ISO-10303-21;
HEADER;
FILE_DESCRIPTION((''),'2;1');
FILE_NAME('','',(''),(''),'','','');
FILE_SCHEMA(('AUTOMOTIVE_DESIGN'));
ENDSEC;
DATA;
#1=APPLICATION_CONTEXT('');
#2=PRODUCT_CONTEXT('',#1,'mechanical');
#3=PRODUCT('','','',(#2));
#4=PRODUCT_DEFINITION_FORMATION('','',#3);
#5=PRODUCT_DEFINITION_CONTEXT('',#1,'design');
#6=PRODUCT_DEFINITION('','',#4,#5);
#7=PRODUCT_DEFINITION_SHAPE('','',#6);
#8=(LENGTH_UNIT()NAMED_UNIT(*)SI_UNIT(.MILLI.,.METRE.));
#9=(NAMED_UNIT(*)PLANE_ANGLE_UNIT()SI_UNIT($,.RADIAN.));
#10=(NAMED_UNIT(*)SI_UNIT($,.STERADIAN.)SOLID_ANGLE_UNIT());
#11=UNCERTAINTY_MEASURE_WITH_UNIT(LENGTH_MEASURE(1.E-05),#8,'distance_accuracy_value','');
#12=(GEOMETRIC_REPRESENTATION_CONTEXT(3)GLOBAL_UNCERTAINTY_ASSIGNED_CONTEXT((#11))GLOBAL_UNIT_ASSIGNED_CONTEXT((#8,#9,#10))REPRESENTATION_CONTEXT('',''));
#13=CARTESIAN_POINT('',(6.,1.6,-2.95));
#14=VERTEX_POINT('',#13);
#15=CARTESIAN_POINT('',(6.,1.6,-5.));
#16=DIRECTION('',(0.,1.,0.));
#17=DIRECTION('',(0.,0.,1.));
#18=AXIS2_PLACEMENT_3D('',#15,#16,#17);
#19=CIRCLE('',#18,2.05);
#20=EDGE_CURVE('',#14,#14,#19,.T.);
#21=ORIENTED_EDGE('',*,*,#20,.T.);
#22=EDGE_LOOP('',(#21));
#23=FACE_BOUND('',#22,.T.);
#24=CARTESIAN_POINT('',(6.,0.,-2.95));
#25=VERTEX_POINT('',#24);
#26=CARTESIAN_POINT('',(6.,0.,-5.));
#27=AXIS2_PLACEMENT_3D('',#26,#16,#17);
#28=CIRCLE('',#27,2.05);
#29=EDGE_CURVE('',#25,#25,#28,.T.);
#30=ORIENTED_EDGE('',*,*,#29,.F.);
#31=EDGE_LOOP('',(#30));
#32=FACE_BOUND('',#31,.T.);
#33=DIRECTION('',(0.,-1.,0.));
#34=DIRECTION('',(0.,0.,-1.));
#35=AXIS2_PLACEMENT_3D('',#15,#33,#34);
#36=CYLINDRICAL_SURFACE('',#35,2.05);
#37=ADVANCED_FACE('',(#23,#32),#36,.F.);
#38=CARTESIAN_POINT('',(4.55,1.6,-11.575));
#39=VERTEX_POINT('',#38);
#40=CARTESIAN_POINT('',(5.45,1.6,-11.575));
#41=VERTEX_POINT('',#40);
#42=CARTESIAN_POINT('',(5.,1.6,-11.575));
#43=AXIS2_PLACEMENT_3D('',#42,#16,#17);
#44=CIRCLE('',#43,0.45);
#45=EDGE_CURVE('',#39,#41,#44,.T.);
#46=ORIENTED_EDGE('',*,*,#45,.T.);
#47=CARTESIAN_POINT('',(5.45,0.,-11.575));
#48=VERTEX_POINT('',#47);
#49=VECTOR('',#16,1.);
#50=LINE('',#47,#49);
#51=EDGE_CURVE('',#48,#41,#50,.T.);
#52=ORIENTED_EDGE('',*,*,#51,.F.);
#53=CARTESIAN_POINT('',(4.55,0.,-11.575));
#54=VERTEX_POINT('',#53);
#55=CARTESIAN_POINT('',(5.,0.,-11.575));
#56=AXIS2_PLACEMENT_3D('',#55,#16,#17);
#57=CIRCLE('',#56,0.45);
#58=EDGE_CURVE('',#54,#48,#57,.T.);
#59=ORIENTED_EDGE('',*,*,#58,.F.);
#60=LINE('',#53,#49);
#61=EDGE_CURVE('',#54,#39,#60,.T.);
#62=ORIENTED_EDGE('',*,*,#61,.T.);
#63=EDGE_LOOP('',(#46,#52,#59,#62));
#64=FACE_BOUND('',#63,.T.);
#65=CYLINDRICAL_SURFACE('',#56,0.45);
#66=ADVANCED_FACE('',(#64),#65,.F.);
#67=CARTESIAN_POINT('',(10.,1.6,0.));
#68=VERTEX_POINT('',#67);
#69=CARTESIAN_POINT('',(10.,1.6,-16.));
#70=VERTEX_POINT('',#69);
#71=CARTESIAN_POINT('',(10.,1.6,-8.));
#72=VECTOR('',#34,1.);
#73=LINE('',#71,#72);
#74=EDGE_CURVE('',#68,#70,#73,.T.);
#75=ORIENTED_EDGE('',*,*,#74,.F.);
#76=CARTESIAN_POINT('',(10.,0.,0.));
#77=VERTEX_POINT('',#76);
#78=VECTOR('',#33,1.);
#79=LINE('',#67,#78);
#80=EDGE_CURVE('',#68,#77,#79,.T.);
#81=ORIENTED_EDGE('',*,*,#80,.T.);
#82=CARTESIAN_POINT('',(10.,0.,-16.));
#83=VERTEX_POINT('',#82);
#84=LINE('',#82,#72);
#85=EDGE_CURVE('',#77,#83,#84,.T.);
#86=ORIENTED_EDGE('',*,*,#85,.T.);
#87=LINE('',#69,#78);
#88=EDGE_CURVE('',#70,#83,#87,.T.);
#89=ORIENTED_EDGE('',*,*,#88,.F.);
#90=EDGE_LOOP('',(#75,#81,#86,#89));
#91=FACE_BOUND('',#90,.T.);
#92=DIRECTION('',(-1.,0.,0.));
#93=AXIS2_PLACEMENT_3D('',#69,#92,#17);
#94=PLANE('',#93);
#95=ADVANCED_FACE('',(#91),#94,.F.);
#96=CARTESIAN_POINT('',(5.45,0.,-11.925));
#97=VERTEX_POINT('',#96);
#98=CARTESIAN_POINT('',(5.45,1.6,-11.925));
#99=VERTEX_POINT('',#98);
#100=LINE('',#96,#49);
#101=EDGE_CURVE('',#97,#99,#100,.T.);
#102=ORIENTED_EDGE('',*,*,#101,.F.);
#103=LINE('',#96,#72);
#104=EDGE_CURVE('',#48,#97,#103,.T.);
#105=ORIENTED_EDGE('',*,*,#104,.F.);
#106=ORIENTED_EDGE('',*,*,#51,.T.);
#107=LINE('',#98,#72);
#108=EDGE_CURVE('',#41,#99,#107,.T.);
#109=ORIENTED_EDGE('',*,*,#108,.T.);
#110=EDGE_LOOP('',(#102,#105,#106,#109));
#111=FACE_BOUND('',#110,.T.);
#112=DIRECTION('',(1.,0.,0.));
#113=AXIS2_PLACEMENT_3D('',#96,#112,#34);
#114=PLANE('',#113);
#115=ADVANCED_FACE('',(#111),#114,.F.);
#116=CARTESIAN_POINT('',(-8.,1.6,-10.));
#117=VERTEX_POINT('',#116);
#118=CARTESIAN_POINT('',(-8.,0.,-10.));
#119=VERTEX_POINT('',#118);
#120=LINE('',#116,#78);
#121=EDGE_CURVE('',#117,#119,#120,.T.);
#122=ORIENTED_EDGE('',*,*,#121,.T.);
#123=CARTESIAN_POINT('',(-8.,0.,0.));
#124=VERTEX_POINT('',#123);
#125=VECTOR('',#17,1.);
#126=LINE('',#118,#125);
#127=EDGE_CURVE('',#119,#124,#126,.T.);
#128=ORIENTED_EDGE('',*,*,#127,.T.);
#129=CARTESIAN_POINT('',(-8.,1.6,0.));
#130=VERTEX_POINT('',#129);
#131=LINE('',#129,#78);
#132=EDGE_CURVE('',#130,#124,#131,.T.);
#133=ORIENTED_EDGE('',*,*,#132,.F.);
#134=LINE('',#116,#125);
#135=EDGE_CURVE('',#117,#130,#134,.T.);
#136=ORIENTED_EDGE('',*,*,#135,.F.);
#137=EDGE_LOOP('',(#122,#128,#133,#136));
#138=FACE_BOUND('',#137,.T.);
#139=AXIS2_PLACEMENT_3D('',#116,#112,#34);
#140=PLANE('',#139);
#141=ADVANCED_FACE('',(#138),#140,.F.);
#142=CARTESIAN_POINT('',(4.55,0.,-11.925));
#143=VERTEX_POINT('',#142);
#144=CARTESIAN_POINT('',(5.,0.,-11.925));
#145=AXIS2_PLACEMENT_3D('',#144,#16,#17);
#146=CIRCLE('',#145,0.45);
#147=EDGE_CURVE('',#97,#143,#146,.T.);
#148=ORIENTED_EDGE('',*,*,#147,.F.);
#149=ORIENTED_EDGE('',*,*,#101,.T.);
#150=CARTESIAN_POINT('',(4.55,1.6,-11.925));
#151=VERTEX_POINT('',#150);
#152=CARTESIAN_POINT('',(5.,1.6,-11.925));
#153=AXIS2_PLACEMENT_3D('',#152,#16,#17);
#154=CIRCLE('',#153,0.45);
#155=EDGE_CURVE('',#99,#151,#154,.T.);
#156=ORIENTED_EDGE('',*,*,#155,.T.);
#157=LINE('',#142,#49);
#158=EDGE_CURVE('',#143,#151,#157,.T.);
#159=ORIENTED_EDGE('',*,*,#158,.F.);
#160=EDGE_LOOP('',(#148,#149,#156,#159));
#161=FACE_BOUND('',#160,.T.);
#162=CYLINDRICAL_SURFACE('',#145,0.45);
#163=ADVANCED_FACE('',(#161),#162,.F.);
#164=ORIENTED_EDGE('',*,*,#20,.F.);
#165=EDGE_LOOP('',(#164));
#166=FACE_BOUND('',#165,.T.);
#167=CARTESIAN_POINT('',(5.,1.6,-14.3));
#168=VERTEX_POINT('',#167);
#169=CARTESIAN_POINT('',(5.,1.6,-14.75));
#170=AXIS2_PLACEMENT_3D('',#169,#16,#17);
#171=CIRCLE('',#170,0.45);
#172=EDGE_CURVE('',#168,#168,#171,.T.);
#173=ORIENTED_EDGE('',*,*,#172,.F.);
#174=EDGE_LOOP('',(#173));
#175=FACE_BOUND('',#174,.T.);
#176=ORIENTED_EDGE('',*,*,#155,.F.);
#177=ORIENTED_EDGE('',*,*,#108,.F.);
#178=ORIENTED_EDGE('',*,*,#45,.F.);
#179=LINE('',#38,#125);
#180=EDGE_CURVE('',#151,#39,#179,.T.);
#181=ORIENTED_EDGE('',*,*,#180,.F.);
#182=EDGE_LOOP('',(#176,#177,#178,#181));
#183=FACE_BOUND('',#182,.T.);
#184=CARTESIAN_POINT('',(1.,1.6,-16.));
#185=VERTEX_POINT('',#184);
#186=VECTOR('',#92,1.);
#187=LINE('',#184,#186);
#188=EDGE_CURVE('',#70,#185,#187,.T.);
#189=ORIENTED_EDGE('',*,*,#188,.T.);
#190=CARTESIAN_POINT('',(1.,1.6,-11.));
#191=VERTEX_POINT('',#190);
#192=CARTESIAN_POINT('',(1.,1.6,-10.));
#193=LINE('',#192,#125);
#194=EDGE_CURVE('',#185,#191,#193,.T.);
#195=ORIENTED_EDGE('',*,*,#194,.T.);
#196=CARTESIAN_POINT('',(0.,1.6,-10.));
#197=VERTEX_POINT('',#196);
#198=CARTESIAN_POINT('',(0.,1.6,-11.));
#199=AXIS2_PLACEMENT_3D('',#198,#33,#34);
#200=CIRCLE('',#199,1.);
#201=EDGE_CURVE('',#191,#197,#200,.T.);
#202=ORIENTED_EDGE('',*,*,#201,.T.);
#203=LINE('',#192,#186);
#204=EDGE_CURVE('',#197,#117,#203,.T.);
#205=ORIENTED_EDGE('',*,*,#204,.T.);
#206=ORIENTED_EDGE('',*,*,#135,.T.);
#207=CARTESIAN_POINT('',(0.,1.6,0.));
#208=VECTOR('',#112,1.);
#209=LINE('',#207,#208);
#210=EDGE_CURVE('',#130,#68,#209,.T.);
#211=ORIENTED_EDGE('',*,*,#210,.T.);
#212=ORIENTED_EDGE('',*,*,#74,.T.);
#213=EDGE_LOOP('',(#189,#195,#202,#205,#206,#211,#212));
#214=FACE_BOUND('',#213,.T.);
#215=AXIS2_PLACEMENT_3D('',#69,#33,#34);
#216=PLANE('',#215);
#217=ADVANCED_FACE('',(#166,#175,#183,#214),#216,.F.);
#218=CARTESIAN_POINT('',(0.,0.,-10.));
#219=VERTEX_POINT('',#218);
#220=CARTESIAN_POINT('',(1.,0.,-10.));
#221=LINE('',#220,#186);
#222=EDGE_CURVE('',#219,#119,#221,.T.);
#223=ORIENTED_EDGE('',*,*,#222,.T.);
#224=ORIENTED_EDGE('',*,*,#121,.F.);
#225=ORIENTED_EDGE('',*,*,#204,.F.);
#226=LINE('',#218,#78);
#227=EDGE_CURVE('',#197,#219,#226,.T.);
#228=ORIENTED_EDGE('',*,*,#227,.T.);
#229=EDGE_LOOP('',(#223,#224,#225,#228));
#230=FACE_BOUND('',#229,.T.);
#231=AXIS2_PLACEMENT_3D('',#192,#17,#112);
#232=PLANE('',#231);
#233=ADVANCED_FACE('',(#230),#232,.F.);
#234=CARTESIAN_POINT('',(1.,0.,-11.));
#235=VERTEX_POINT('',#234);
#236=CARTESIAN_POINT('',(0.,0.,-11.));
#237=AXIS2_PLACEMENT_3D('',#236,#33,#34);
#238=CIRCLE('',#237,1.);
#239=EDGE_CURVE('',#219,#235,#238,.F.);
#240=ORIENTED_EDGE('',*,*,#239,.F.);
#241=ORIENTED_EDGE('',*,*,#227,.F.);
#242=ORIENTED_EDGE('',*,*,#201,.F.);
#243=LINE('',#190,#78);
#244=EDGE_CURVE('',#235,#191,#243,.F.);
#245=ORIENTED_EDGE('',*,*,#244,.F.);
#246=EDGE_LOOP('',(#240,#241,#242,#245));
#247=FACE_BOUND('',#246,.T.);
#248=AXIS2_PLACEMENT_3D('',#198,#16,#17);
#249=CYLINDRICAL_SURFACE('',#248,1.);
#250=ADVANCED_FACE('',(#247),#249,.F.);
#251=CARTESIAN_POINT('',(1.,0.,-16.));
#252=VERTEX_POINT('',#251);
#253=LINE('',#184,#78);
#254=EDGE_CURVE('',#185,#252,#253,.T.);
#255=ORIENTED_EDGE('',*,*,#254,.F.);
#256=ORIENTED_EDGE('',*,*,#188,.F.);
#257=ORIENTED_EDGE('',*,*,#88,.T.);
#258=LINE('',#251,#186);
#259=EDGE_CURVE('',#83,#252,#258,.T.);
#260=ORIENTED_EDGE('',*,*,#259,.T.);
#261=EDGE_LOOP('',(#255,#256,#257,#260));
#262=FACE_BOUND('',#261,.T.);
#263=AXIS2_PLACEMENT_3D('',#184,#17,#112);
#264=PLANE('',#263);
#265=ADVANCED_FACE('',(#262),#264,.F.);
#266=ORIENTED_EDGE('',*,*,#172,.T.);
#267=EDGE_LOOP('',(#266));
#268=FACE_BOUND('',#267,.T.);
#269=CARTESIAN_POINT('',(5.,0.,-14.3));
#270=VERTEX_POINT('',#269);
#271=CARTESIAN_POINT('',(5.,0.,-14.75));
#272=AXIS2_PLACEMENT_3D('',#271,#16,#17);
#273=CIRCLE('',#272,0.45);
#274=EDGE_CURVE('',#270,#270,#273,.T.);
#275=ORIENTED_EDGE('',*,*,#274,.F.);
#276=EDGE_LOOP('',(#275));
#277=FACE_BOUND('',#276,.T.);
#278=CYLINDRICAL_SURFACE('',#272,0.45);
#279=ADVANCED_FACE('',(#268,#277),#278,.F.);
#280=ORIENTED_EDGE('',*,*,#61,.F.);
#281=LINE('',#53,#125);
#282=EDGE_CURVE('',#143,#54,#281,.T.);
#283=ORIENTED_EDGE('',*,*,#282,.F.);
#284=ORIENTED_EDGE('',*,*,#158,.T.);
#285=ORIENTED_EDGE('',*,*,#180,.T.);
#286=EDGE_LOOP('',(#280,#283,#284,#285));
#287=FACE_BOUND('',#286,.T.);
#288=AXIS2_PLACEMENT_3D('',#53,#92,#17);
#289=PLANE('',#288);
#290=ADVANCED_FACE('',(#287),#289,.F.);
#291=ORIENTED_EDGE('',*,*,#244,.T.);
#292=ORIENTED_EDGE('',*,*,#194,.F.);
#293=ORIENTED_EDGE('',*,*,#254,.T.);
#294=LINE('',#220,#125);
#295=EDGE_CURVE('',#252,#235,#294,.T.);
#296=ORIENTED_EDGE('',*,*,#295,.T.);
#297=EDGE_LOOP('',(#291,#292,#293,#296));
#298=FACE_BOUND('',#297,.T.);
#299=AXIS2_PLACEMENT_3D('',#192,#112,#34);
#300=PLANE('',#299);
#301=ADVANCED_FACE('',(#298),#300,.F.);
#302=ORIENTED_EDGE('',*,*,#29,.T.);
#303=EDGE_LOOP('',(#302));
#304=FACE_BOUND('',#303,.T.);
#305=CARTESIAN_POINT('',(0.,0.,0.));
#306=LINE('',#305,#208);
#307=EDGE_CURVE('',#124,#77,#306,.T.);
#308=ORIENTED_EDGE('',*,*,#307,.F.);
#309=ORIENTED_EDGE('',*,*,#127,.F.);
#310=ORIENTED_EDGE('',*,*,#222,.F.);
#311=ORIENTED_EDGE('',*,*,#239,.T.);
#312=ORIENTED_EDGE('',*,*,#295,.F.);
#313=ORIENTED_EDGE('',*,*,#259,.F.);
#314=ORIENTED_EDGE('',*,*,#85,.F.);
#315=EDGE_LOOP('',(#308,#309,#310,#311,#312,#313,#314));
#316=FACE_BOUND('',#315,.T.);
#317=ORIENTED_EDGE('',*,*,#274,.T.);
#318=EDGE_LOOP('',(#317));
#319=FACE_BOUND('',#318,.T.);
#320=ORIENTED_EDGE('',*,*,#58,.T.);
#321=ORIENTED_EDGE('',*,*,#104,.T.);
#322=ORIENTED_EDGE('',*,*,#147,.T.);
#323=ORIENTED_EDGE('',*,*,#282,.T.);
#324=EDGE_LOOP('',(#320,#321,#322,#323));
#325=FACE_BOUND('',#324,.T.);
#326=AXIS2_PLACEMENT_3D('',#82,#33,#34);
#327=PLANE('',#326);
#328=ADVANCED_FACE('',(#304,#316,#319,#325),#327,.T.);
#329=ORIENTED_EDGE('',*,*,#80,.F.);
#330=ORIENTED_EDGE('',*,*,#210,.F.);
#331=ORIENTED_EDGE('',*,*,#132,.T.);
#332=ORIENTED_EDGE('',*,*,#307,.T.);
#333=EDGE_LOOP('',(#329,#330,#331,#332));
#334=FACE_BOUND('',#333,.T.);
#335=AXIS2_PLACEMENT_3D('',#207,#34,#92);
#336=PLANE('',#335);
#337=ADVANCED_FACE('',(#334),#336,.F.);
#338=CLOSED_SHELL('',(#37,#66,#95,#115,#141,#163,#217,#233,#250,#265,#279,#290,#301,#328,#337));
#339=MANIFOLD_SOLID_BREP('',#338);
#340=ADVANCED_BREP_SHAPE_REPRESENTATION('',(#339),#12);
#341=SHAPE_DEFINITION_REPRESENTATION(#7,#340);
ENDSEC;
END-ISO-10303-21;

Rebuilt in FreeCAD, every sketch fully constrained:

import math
import FreeCAD as App
import Part
import Sketcher
from FreeCAD import Vector


def edges_at(feature, points):
    """Names of the edges that pass closest to the given points."""
    edges = feature.Shape.Edges
    near = lambda p: min(range(len(edges)), key=lambda i: edges[i].distToShape(Part.Vertex(*p))[0])
    return sorted({f"Edge{near(p) + 1}" for p in points})


def add_polygon(sketch, points):
    """Adds a closed chain of lines whose ends are joined by coincident constraints."""
    first, n = sketch.GeometryCount, len(points)
    for a, b in zip(points, points[1:] + points[:1]):
        sketch.addGeometry(Part.LineSegment(App.Vector(*a, 0), App.Vector(*b, 0)), False)
    for i in range(n):
        sketch.addConstraint(Sketcher.Constraint("Coincident", first + i, 2, first + (i + 1) % n, 1))

doc = App.newDocument("Part")
params = doc.addObject("Spreadsheet::Sheet", "Params")
for row, (alias, value) in enumerate([
    ("sketch1_diameter", "4.1 mm"),
    ("sketch1_width", "9 mm"),
    ("sketch1_height", "6 mm"),
    ("sketch1_height2", "10 mm"),
    ("pad1_length", "1.6 mm"),
    ("sketch2_diameter", "0.9 mm"),
    ("sketch2_height", "0.35 mm"),
    ("fillet_radius", "1 mm"),
], start=1):
    params.set(f"A{row}", alias)
    params.set(f"B{row}", "=" + value)
    params.setAlias(f"B{row}", alias)

body = doc.addObject("PartDesign::Body", "Body")

sketch1 = body.newObject("Sketcher::SketchObject", "Sketch")
sketch1.AttachmentSupport = (doc.getObject("XZ_Plane"), [""])
sketch1.MapMode = "FlatFace"
add_polygon(sketch1, [(1, -16), (1, -10), (-8, -10), (-8, 0), (10, 0), (10, -16)])
sketch1.addGeometry(Part.Circle(Vector(6, -5, 0), Vector(0, 0, 1), 2), False)
sketch1.addConstraint(Sketcher.Constraint("Vertical", 0))
sketch1.addConstraint(Sketcher.Constraint("Horizontal", 1))
sketch1.addConstraint(Sketcher.Constraint("Vertical", 2))
sketch1.addConstraint(Sketcher.Constraint("Horizontal", 3))
sketch1.addConstraint(Sketcher.Constraint("Vertical", 4))
sketch1.addConstraint(Sketcher.Constraint("Horizontal", 5))
sketch1.addConstraint(Sketcher.Constraint("PointOnObject", 2, 2, -1))
sketch1.addConstraint(Sketcher.Constraint("Equal", 1, 5))
sketch1.addConstraint(Sketcher.Constraint("Diameter", 6, 4.1))
sketch1.addConstraint(Sketcher.Constraint("DistanceX", 1, 2, 1, 1, 9.0))
sketch1.addConstraint(Sketcher.Constraint("DistanceY", 0, 1, 0, 2, 6.0))
sketch1.addConstraint(Sketcher.Constraint("DistanceY", 2, 1, 2, 2, 10.0))
sketch1.addConstraint(Sketcher.Constraint("DistanceX", -1, 1, 6, 3, 6.0))
sketch1.addConstraint(Sketcher.Constraint("DistanceY", 6, 3, -1, 1, 5.0))
sketch1.addConstraint(Sketcher.Constraint("DistanceX", -1, 1, 0, 2, 1.0))
sketch1.setExpression("Constraints[14]", "Params.sketch1_diameter")
sketch1.setExpression("Constraints[15]", "Params.sketch1_width")
sketch1.setExpression("Constraints[16]", "Params.sketch1_height")
sketch1.setExpression("Constraints[17]", "Params.sketch1_height2")
pad1 = body.newObject("PartDesign::Pad", "Pad")
pad1.Profile = sketch1
pad1.setExpression("Length", "Params.pad1_length")
pad1.Reversed = True

sketch2 = body.newObject("Sketcher::SketchObject", "Sketch001")
sketch2.AttachmentSupport = (doc.getObject("XZ_Plane"), [""])
sketch2.MapMode = "FlatFace"
sketch2.AttachmentOffset = App.Placement(Vector(0, 0, -1.6), App.Rotation())
sketch2.addGeometry(Part.Circle(Vector(5, -14.75, 0), Vector(0, 0, 1), 0.45), False)
sketch2.addGeometry(Part.LineSegment(Vector(4.55, -11.93, 0), Vector(4.55, -11.57, 0)), False)
sketch2.addGeometry(Part.ArcOfCircle(Part.Circle(Vector(5, -11.57, 0), Vector(0, 0, 1), 0.45), math.radians(0), math.radians(180)), False)
sketch2.addGeometry(Part.LineSegment(Vector(5.45, -11.57, 0), Vector(5.45, -11.93, 0)), False)
sketch2.addGeometry(Part.ArcOfCircle(Part.Circle(Vector(5, -11.93, 0), Vector(0, 0, 1), 0.45), math.radians(180), math.radians(360)), False)
sketch2.addConstraint(Sketcher.Constraint("Tangent", 1, 2, 2, 2))
sketch2.addConstraint(Sketcher.Constraint("Tangent", 2, 1, 3, 1))
sketch2.addConstraint(Sketcher.Constraint("Tangent", 3, 2, 4, 2))
sketch2.addConstraint(Sketcher.Constraint("Tangent", 4, 1, 1, 1))
sketch2.addConstraint(Sketcher.Constraint("Vertical", 1))
sketch2.addConstraint(Sketcher.Constraint("Vertical", 3))
sketch2.addConstraint(Sketcher.Constraint("Equal", 0, 2))
sketch2.addConstraint(Sketcher.Constraint("Vertical", 0, 3, 2, 3))
sketch2.addConstraint(Sketcher.Constraint("Diameter", 0, 0.9))
sketch2.addConstraint(Sketcher.Constraint("DistanceX", -1, 1, 0, 3, 5.0))
sketch2.addConstraint(Sketcher.Constraint("DistanceY", 1, 1, 1, 2, 0.35))
sketch2.addConstraint(Sketcher.Constraint("DistanceY", 0, 3, -1, 1, 14.75))
sketch2.addConstraint(Sketcher.Constraint("DistanceY", 2, 3, -1, 1, 11.575))
sketch2.setExpression("Constraints[8]", "Params.sketch2_diameter")
sketch2.setExpression("Constraints[10]", "Params.sketch2_height")
pocket1 = body.newObject("PartDesign::Pocket", "Pocket")
pocket1.Profile = sketch2
pocket1.Type = "ThroughAll"
pocket1.Reversed = True
doc.recompute()

fillet = body.newObject("PartDesign::Fillet", "Fillet")
fillet.Base = (pocket1, edges_at(pocket1, [(1, 0.8, -10)]))
fillet.setExpression("Radius", "Params.fillet_radius")

doc.recompute()
